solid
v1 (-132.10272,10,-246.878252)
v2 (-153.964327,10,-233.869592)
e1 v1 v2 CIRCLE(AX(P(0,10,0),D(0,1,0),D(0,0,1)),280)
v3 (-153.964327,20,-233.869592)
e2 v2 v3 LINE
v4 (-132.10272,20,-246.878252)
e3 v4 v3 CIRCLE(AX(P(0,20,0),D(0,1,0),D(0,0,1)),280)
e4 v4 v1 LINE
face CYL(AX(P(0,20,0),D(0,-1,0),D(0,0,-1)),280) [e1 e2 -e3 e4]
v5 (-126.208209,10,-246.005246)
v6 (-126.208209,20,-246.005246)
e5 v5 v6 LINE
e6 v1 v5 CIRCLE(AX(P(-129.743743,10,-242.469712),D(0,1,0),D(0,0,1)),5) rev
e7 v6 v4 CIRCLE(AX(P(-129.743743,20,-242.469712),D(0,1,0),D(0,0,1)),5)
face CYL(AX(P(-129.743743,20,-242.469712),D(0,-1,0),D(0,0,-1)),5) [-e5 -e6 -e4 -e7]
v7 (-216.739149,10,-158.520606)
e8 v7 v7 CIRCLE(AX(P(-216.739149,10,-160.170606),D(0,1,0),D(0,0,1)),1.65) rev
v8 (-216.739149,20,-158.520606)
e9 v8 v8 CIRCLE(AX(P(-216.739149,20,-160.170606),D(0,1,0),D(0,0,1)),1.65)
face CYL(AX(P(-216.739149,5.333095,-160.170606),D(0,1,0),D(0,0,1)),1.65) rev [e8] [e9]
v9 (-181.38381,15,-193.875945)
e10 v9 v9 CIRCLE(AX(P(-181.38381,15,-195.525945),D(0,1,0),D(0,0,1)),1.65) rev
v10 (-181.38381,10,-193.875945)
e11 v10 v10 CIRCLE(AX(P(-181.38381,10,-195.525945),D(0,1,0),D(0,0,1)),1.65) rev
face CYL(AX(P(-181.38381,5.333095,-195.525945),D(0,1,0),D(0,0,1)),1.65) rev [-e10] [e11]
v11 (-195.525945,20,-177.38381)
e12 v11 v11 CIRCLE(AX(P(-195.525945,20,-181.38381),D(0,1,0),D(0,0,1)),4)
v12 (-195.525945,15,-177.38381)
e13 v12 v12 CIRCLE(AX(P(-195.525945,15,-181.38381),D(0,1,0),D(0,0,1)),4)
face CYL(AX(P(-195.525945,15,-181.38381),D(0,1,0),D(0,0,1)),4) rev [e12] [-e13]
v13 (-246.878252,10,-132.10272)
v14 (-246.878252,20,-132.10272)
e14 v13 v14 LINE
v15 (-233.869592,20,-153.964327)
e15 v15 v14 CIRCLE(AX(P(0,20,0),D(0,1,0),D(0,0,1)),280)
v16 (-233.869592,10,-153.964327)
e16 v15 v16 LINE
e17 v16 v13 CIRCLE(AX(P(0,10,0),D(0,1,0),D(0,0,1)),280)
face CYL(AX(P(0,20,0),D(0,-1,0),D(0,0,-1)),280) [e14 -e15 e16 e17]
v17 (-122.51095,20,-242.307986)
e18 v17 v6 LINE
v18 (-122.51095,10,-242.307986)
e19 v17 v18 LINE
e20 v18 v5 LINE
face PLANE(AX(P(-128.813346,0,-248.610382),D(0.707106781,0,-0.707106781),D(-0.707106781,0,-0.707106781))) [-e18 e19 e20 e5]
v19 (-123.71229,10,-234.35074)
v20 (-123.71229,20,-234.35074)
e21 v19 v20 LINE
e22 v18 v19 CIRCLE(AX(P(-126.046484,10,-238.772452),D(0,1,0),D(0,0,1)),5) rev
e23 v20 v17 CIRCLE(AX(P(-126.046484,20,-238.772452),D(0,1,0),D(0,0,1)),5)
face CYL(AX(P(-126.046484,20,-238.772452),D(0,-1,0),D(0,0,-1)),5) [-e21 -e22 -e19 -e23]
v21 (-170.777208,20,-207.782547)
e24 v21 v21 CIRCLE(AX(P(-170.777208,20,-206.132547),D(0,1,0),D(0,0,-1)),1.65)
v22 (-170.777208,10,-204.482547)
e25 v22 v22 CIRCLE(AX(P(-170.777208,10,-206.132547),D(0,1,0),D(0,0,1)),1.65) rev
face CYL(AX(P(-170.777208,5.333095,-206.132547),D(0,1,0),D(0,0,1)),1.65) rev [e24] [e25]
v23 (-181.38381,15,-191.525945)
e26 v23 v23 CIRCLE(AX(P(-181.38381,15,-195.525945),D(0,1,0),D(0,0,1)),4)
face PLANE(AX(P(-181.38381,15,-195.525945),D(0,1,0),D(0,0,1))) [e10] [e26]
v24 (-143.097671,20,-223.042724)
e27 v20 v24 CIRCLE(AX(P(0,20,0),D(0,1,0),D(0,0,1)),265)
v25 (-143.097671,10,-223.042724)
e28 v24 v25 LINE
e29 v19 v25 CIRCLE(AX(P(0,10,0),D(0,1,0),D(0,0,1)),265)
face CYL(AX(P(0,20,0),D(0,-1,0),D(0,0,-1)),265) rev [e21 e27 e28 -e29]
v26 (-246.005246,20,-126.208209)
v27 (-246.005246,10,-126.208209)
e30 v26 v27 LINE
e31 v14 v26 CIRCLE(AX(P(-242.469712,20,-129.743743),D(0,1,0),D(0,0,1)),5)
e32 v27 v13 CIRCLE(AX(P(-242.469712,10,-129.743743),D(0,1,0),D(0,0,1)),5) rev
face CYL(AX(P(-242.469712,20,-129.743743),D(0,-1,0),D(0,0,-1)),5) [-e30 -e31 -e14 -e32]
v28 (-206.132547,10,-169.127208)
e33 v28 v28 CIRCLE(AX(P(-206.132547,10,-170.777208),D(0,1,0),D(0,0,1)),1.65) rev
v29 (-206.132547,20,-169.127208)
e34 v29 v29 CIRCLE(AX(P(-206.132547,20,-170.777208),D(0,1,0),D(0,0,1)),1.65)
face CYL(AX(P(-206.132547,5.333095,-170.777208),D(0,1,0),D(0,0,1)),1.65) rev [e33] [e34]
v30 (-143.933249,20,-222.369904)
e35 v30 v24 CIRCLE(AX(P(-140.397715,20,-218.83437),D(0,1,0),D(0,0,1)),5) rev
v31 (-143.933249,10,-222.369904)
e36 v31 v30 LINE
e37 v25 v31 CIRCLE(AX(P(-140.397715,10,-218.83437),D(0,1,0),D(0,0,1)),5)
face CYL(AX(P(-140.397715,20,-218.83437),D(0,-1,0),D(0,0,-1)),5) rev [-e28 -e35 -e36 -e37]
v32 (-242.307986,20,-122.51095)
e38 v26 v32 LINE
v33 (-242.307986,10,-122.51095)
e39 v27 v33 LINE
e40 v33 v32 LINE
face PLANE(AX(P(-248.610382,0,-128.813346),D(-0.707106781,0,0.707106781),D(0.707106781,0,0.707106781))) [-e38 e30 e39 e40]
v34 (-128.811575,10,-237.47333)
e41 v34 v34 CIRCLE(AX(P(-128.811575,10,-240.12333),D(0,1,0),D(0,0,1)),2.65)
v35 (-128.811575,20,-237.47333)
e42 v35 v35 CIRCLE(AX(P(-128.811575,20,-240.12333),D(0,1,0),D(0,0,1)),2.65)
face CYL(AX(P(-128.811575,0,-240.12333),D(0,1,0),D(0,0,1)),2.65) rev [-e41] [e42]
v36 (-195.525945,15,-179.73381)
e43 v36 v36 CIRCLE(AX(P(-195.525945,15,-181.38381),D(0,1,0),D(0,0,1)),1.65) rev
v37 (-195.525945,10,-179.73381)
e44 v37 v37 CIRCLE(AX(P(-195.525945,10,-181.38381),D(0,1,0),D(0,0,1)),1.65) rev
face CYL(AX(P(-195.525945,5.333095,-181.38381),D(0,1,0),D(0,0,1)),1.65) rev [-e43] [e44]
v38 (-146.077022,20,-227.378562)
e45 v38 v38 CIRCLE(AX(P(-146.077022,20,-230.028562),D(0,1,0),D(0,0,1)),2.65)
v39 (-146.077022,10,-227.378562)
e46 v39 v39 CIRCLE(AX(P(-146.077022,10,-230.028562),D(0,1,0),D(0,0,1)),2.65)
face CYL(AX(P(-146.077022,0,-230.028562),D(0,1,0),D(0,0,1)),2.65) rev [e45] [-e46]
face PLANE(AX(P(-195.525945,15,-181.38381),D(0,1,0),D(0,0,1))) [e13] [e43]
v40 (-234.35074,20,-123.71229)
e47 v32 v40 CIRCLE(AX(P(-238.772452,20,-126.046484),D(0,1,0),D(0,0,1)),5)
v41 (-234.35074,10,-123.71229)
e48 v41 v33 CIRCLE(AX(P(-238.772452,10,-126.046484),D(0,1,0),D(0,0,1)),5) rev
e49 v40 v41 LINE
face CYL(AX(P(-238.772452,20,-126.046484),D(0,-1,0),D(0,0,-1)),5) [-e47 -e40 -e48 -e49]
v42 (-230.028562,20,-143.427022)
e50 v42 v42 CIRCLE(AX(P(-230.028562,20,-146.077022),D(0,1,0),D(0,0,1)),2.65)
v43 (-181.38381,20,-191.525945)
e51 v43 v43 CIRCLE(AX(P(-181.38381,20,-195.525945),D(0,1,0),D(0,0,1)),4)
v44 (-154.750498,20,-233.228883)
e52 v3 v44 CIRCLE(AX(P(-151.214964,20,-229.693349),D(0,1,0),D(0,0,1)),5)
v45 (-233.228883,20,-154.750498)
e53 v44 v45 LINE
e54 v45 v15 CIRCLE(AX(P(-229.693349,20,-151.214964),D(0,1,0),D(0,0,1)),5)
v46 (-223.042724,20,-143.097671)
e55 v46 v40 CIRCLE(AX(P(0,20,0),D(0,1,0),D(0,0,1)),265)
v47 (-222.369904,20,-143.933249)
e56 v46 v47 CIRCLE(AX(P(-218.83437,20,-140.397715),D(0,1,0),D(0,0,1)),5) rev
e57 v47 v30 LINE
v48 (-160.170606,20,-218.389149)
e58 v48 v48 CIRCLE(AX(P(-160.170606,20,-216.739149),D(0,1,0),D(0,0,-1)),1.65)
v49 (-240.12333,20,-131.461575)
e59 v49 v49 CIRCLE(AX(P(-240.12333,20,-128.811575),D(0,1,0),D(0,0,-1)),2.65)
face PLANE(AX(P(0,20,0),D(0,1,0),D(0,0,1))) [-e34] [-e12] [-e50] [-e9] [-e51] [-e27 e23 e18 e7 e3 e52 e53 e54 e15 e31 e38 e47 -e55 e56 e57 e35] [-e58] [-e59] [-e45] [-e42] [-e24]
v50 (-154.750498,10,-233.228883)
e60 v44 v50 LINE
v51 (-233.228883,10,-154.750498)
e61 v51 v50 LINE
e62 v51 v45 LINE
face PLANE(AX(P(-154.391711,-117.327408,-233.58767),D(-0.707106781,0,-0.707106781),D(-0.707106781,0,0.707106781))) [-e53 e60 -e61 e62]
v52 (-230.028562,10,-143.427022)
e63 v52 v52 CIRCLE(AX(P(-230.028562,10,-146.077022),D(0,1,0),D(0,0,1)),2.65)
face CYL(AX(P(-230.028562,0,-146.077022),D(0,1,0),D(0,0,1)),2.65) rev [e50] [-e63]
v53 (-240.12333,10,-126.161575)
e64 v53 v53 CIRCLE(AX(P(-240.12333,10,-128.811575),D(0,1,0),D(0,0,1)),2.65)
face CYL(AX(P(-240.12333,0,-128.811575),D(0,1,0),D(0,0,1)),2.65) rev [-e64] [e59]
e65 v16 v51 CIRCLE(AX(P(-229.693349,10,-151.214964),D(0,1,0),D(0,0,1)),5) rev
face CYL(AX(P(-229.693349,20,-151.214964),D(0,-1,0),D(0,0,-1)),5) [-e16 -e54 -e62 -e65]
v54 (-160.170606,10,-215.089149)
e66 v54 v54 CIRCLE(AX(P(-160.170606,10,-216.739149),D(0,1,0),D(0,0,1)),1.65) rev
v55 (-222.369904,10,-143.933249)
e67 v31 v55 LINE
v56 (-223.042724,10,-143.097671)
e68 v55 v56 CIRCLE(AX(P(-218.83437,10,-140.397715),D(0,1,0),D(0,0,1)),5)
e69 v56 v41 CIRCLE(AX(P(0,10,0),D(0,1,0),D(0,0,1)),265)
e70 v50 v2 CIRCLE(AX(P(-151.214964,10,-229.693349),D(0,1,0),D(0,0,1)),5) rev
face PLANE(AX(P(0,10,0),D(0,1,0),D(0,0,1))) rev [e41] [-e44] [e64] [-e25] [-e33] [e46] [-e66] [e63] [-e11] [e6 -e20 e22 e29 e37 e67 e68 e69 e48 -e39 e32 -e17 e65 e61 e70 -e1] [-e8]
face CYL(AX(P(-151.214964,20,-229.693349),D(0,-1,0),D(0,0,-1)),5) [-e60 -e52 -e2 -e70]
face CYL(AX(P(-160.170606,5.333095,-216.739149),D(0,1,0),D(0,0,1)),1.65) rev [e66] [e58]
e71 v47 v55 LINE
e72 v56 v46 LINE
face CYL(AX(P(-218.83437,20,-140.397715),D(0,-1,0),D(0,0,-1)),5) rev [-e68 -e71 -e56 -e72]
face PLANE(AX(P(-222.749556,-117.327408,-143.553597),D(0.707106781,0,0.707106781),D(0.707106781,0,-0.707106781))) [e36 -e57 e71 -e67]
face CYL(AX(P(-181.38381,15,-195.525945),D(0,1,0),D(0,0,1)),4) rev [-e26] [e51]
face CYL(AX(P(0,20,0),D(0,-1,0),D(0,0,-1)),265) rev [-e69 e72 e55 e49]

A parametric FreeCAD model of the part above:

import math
import FreeCAD as App
import Part
import Sketcher
Q = App.Units.Quantity


def edges_at(feature, points):
    """Names of the edges that pass closest to the given points."""
    edges = feature.Shape.Edges
    near = lambda p: min(range(len(edges)), key=lambda i: edges[i].distToShape(Part.Vertex(*p))[0])
    return sorted({f"Edge{near(p) + 1}" for p in points})


def add_polygon(sketch, points):
    """Adds a closed chain of lines whose ends are joined by coincident constraints."""
    first, n = sketch.GeometryCount, len(points)
    for a, b in zip(points, points[1:] + points[:1]):
        sketch.addGeometry(Part.LineSegment(App.Vector(*a, 0), App.Vector(*b, 0)), False)
    for i in range(n):
        sketch.addConstraint(Sketcher.Constraint("Coincident", first + i, 2, first + (i + 1) % n, 1))

doc = App.newDocument("Part")
body = doc.addObject("PartDesign::Body", "Body")

# Sketch on XZ plane
sketch1 = doc.addObject("Sketcher::SketchObject", "Sketch")
body.addObject(sketch1)
sketch1.AttachmentSupport = (doc.XZ_Plane, [""])
sketch1.MapMode = "FlatFace"
sketch1.addGeometry([
    Part.Circle(App.Vector(0, 0, 0), App.Vector(0, 0, 1), 275),
    Part.Circle(App.Vector(0, 0, 0), App.Vector(0, 0, 1), 255),
], False)
sketch1.addConstraint([
    Sketcher.Constraint("Coincident", 0, 3, -1, 1),
    Sketcher.Constraint("Coincident", 1, 3, -1, 1),
    Sketcher.Constraint("Diameter", 0, 550.0),
    Sketcher.Constraint("Diameter", 1, 510.0),
])
pad1 = doc.addObject("PartDesign::Pad", "Pad")
body.addObject(pad1)
pad1.Profile = sketch1
pad1.Length = 10
pad1.Reversed = True

# Sketch on XY plane
sketch2 = doc.addObject("Sketcher::SketchObject", "Sketch001")
body.addObject(sketch2)
sketch2.AttachmentSupport = (doc.XY_Plane, [""])
sketch2.MapMode = "FlatFace"
add_polygon(sketch2, [(-389, 10), (-389, -10), (389, -10), (389, 10)])  # lines 0-3
sketch2.addConstraint([
    Sketcher.Constraint("Vertical", 0),
    Sketcher.Constraint("Horizontal", 1),
    Sketcher.Constraint("Vertical", 2),
    Sketcher.Constraint("Horizontal", 3),
    Sketcher.Constraint("Symmetric", 0, 2, 2, 2, -1, 1),
    Sketcher.Constraint("DistanceY", 0, 2, 0, 1, 20.0),
    Sketcher.Constraint("DistanceX", 1, 1, 1, 2, 777.504066),
])
pocket1 = doc.addObject("PartDesign::Pocket", "Pocket")
body.addObject(pocket1)
pocket1.Profile = sketch2
pocket1.Type = "ThroughAll"
pocket1.Midplane = True
body2 = doc.addObject("PartDesign::Body", "Body001")

# Sketch on XZ plane
sketch3 = doc.addObject("Sketcher::SketchObject", "Sketch002")
body2.addObject(sketch3)
sketch3.AttachmentSupport = (doc.getObject("XZ_Plane001"), [""])
sketch3.MapMode = "FlatFace"
sketch3.AttachmentOffset = App.Placement(App.Vector(0, 0, -10), App.Rotation())
sketch3.addGeometry([
    Part.LineSegment(App.Vector(-25, -200, 0), App.Vector(-111, -257, 0)),  # 0
    Part.ArcOfCircle(Part.Circle(App.Vector(0, 0, 0), App.Vector(0, 0, 1), 280), math.radians(-157), math.radians(-113)),  # 1
    Part.LineSegment(App.Vector(-257, -111, 0), App.Vector(-200, -25, 0)),  # 2
    Part.LineSegment(App.Vector(-200, -25, 0), App.Vector(-200, 25, 0)),  # 3
    Part.LineSegment(App.Vector(-200, 25, 0), App.Vector(-257, 111, 0)),  # 4
    Part.ArcOfCircle(Part.Circle(App.Vector(0, 0, 0), App.Vector(0, 0, 1), 280), math.radians(113), math.radians(157)),  # 5
    Part.LineSegment(App.Vector(-111, 257, 0), App.Vector(-25, 200, 0)),  # 6
    Part.LineSegment(App.Vector(-25, 200, 0), App.Vector(25, 200, 0)),  # 7
    Part.LineSegment(App.Vector(25, 200, 0), App.Vector(111, 257, 0)),  # 8
    Part.ArcOfCircle(Part.Circle(App.Vector(0, 0, 0), App.Vector(0, 0, 1), 280), math.radians(23), math.radians(67)),  # 9
    Part.LineSegment(App.Vector(257, 111, 0), App.Vector(200, 25, 0)),  # 10
    Part.LineSegment(App.Vector(200, 25, 0), App.Vector(200, -25, 0)),  # 11
    Part.LineSegment(App.Vector(200, -25, 0), App.Vector(257, -111, 0)),  # 12
    Part.ArcOfCircle(Part.Circle(App.Vector(0, 0, 0), App.Vector(0, 0, 1), 280), math.radians(-67), math.radians(-23)),  # 13
    Part.LineSegment(App.Vector(111, -257, 0), App.Vector(25, -200, 0)),  # 14
    Part.LineSegment(App.Vector(25, -200, 0), App.Vector(-25, -200, 0)),  # 15
    Part.LineSegment(App.Vector(30, -185, 0), App.Vector(112, -240, 0)),  # 16
    Part.ArcOfCircle(Part.Circle(App.Vector(0, 0, 0), App.Vector(0, 0, 1), 265), math.radians(-65), math.radians(-25)),  # 17
    Part.LineSegment(App.Vector(240, -112, 0), App.Vector(185, -30, 0)),  # 18
    Part.LineSegment(App.Vector(185, -30, 0), App.Vector(185, 30, 0)),  # 19
    Part.LineSegment(App.Vector(185, 30, 0), App.Vector(240, 112, 0)),  # 20
    Part.ArcOfCircle(Part.Circle(App.Vector(0, 0, 0), App.Vector(0, 0, 1), 265), math.radians(25), math.radians(65)),  # 21
    Part.LineSegment(App.Vector(112, 240, 0), App.Vector(30, 185, 0)),  # 22
    Part.LineSegment(App.Vector(30, 185, 0), App.Vector(-30, 185, 0)),  # 23
    Part.LineSegment(App.Vector(-30, 185, 0), App.Vector(-112, 240, 0)),  # 24
    Part.ArcOfCircle(Part.Circle(App.Vector(0, 0, 0), App.Vector(0, 0, 1), 265), math.radians(115), math.radians(155)),  # 25
    Part.LineSegment(App.Vector(-240, 112, 0), App.Vector(-185, 30, 0)),  # 26
    Part.LineSegment(App.Vector(-185, 30, 0), App.Vector(-185, -30, 0)),  # 27
    Part.LineSegment(App.Vector(-185, -30, 0), App.Vector(-240, -112, 0)),  # 28
    Part.ArcOfCircle(Part.Circle(App.Vector(0, 0, 0), App.Vector(0, 0, 1), 265), math.radians(-155), math.radians(-115)),  # 29
    Part.LineSegment(App.Vector(-112, -240, 0), App.Vector(-30, -185, 0)),  # 30
    Part.LineSegment(App.Vector(-30, -185, 0), App.Vector(30, -185, 0)),  # 31
], False)
sketch3.addConstraint([
    Sketcher.Constraint("Coincident", 0, 2, 1, 2),
    Sketcher.Constraint("Coincident", 1, 1, 2, 1),
    Sketcher.Constraint("Coincident", 2, 2, 3, 1),
    Sketcher.Constraint("Coincident", 3, 2, 4, 1),
    Sketcher.Constraint("Coincident", 4, 2, 5, 2),
    Sketcher.Constraint("Coincident", 5, 1, 6, 1),
    Sketcher.Constraint("Coincident", 6, 2, 7, 1),
    Sketcher.Constraint("Coincident", 7, 2, 8, 1),
    Sketcher.Constraint("Coincident", 8, 2, 9, 2),
    Sketcher.Constraint("Coincident", 9, 1, 10, 1),
    Sketcher.Constraint("Coincident", 10, 2, 11, 1),
    Sketcher.Constraint("Coincident", 11, 2, 12, 1),
    Sketcher.Constraint("Coincident", 12, 2, 13, 2),
    Sketcher.Constraint("Coincident", 13, 1, 14, 1),
    Sketcher.Constraint("Coincident", 14, 2, 15, 1),
    Sketcher.Constraint("Coincident", 15, 2, 0, 1),
    Sketcher.Constraint("Coincident", 16, 2, 17, 1),
    Sketcher.Constraint("Coincident", 17, 2, 18, 1),
    Sketcher.Constraint("Coincident", 18, 2, 19, 1),
    Sketcher.Constraint("Coincident", 19, 2, 20, 1),
    Sketcher.Constraint("Coincident", 20, 2, 21, 1),
    Sketcher.Constraint("Coincident", 21, 2, 22, 1),
    Sketcher.Constraint("Coincident", 22, 2, 23, 1),
    Sketcher.Constraint("Coincident", 23, 2, 24, 1),
    Sketcher.Constraint("Coincident", 24, 2, 25, 1),
    Sketcher.Constraint("Coincident", 25, 2, 26, 1),
    Sketcher.Constraint("Coincident", 26, 2, 27, 1),
    Sketcher.Constraint("Coincident", 27, 2, 28, 1),
    Sketcher.Constraint("Coincident", 28, 2, 29, 1),
    Sketcher.Constraint("Coincident", 29, 2, 30, 1),
    Sketcher.Constraint("Coincident", 30, 2, 31, 1),
    Sketcher.Constraint("Coincident", 31, 2, 16, 1),
    Sketcher.Constraint("Vertical", 3),
    Sketcher.Constraint("Horizontal", 7),
    Sketcher.Constraint("Vertical", 11),
    Sketcher.Constraint("Horizontal", 15),
    Sketcher.Constraint("Vertical", 19),
    Sketcher.Constraint("Horizontal", 23),
    Sketcher.Constraint("Vertical", 27),
    Sketcher.Constraint("Horizontal", 31),
    Sketcher.Constraint("Coincident", 1, 3, -1, 1),
    Sketcher.Constraint("Coincident", 5, 3, -1, 1),
    Sketcher.Constraint("Coincident", 9, 3, -1, 1),
    Sketcher.Constraint("Coincident", 13, 3, -1, 1),
    Sketcher.Constraint("Coincident", 17, 3, -1, 1),
    Sketcher.Constraint("Coincident", 21, 3, -1, 1),
    Sketcher.Constraint("Coincident", 25, 3, -1, 1),
    Sketcher.Constraint("Coincident", 29, 3, -1, 1),
    Sketcher.Constraint("Equal", 1, 5),
    Sketcher.Constraint("Equal", 5, 9),
    Sketcher.Constraint("Equal", 9, 13),
    Sketcher.Constraint("Equal", 17, 21),
    Sketcher.Constraint("Equal", 21, 25),
    Sketcher.Constraint("Equal", 25, 29),
    Sketcher.Constraint("Symmetric", 2, 2, 10, 2, -1, 1),
    Sketcher.Constraint("Symmetric", 6, 2, 14, 2, -1, 1),
    Sketcher.Constraint("Symmetric", 18, 2, 26, 2, -1, 1),
    Sketcher.Constraint("Symmetric", 22, 2, 30, 2, -1, 1),
    Sketcher.Constraint("Perpendicular", 0, 4),
    Sketcher.Constraint("Perpendicular", 2, 6),
    Sketcher.Constraint("Perpendicular", 4, 8),
    Sketcher.Constraint("Perpendicular", 6, 10),
    Sketcher.Constraint("Perpendicular", 8, 12),
    Sketcher.Constraint("Perpendicular", 10, 14),
    Sketcher.Constraint("Parallel", 14, 16),
    Sketcher.Constraint("Parallel", 12, 18),
    Sketcher.Constraint("Perpendicular", 16, 20),
    Sketcher.Constraint("Perpendicular", 18, 22),
    Sketcher.Constraint("Perpendicular", 20, 24),
    Sketcher.Constraint("Perpendicular", 22, 26),
    Sketcher.Constraint("Perpendicular", 24, 28),
    Sketcher.Constraint("Perpendicular", 26, 30),
    Sketcher.Constraint("Horizontal", 5, 1, 8, 2),
    Sketcher.Constraint("Horizontal", 4, 2, 9, 1),
    Sketcher.Constraint("Horizontal", 3, 2, 10, 2),
    Sketcher.Constraint("Horizontal", 2, 2, 11, 2),
    Sketcher.Constraint("Horizontal", 19, 2, 26, 2),
    Sketcher.Constraint("Horizontal", 18, 2, 27, 2),
    Sketcher.Constraint("Vertical", 6, 2, 15, 2),
    Sketcher.Constraint("Vertical", 23, 2, 30, 2),
    Sketcher.Constraint("Vertical", 22, 2, 31, 2),
    Sketcher.Constraint("Equal", 15, 3),
    Sketcher.Constraint("Equal", 31, 19),
    Sketcher.Constraint("Equal", 0, 2),
    Sketcher.Constraint("Equal", 16, 18),
    Sketcher.Constraint("Radius", 1, 280.0),
    Sketcher.Constraint("Radius", 17, 265.0),
    Sketcher.Constraint("DistanceX", 23, 2, 23, 1, 60.0),
    Sketcher.Constraint("DistanceX", 2, 2, -1, 1, 200.0),
    Sketcher.Constraint("DistanceX", -1, 1, 18, 2, 185.0),
    Sketcher.Constraint("DistanceX", 7, 1, 7, 2, 50.846511),
    Sketcher.Constraint("DistanceX", 0, 2, -1, 1, 110.52514),
])
pad2 = doc.addObject("PartDesign::Pad", "Pad001")
body2.addObject(pad2)
pad2.Profile = sketch3
pad2.Length = 10
pad2.Reversed = True

# Sketch on XZ plane
sketch4 = doc.addObject("Sketcher::SketchObject", "Sketch003")
body2.addObject(sketch4)
sketch4.AttachmentSupport = (doc.getObject("XZ_Plane001"), [""])
sketch4.MapMode = "FlatFace"
sketch4.AttachmentOffset = App.Placement(App.Vector(0, 0, -20), App.Rotation())
sketch4.addGeometry([
    Part.Circle(App.Vector(-10, -192.5, 0), App.Vector(0, 0, 1), 2.6),  # 0
    Part.Circle(App.Vector(10, -192.5, 0), App.Vector(0, 0, 1), 2.6),  # 1
    Part.Circle(App.Vector(-10, 192.5, 0), App.Vector(0, 0, 1), 2.6),  # 2
    Part.Circle(App.Vector(10, 192.5, 0), App.Vector(0, 0, 1), 2.6),  # 3
    Part.Circle(App.Vector(192.5, -10, 0), App.Vector(0, 0, 1), 2.6),  # 4
    Part.Circle(App.Vector(192.5, 10, 0), App.Vector(0, 0, 1), 2.6),  # 5
    Part.Circle(App.Vector(-192.5, -10, 0), App.Vector(0, 0, 1), 2.6),  # 6
    Part.Circle(App.Vector(-192.5, 10, 0), App.Vector(0, 0, 1), 2.6),  # 7
    Part.Circle(App.Vector(-110.5, -248.2, 0), App.Vector(0, 0, 1), 1.6),  # 8
    Part.Circle(App.Vector(-27.7, -192.5, 0), App.Vector(0, 0, 1), 2.1),  # 9
    Part.Circle(App.Vector(-44.3, -203.7, 0), App.Vector(0, 0, 1), 2.1),  # 10
    Part.Circle(App.Vector(-56.7, -212, 0), App.Vector(0, 0, 1), 2.1),  # 11
    Part.Circle(App.Vector(-69.2, -220.4, 0), App.Vector(0, 0, 1), 2.1),  # 12
    Part.Circle(App.Vector(-81.6, -228.8, 0), App.Vector(0, 0, 1), 2.1),  # 13
    Part.Circle(App.Vector(-146.1, -230, 0), App.Vector(0, 0, 1), 2.6),  # 14
    Part.Circle(App.Vector(-164.4, -217.3, 0), App.Vector(0, 0, 1), 2.6),  # 15
    Part.Circle(App.Vector(-183.6, -201.3, 0), App.Vector(0, 0, 1), 2.6),  # 16
    Part.Circle(App.Vector(-201.3, -183.6, 0), App.Vector(0, 0, 1), 2.6),  # 17
    Part.Circle(App.Vector(-217.3, -164.4, 0), App.Vector(0, 0, 1), 2.6),  # 18
    Part.Circle(App.Vector(-230, -146.1, 0), App.Vector(0, 0, 1), 2.6),  # 19
    Part.Circle(App.Vector(-128.8, -240.1, 0), App.Vector(0, 0, 1), 2.6),  # 20
    Part.Circle(App.Vector(-240.1, -128.8, 0), App.Vector(0, 0, 1), 2.6),  # 21
    Part.Circle(App.Vector(-228.8, -81.6, 0), App.Vector(0, 0, 1), 2.1),  # 22
    Part.Circle(App.Vector(-220.4, -69.2, 0), App.Vector(0, 0, 1), 2.1),  # 23
    Part.Circle(App.Vector(-212, -56.7, 0), App.Vector(0, 0, 1), 2.1),  # 24
    Part.Circle(App.Vector(-203.7, -44.3, 0), App.Vector(0, 0, 1), 2.1),  # 25
    Part.Circle(App.Vector(-192.5, -27.7, 0), App.Vector(0, 0, 1), 2.1),  # 26
    Part.Circle(App.Vector(-248.2, -110.5, 0), App.Vector(0, 0, 1), 1.6),  # 27
    Part.Circle(App.Vector(192.5, -27.7, 0), App.Vector(0, 0, 1), 2.1),  # 28
    Part.Circle(App.Vector(248.2, -110.5, 0), App.Vector(0, 0, 1), 1.6),  # 29
    Part.Circle(App.Vector(203.7, -44.3, 0), App.Vector(0, 0, 1), 2.1),  # 30
    Part.Circle(App.Vector(212, -56.7, 0), App.Vector(0, 0, 1), 2.1),  # 31
    Part.Circle(App.Vector(220.4, -69.2, 0), App.Vector(0, 0, 1), 2.1),  # 32
    Part.Circle(App.Vector(228.8, -81.6, 0), App.Vector(0, 0, 1), 2.1),  # 33
    Part.Circle(App.Vector(240.1, -128.8, 0), App.Vector(0, 0, 1), 2.6),  # 34
    Part.Circle(App.Vector(230, -146.1, 0), App.Vector(0, 0, 1), 2.6),  # 35
    Part.Circle(App.Vector(128.8, -240.1, 0), App.Vector(0, 0, 1), 2.6),  # 36
    Part.Circle(App.Vector(201.3, -183.6, 0), App.Vector(0, 0, 1), 2.6),  # 37
    Part.Circle(App.Vector(183.6, -201.3, 0), App.Vector(0, 0, 1), 2.6),  # 38
    Part.Circle(App.Vector(164.4, -217.3, 0), App.Vector(0, 0, 1), 2.6),  # 39
    Part.Circle(App.Vector(146.1, -230, 0), App.Vector(0, 0, 1), 2.6),  # 40
    Part.Circle(App.Vector(81.6, -228.8, 0), App.Vector(0, 0, 1), 2.1),  # 41
    Part.Circle(App.Vector(69.2, -220.4, 0), App.Vector(0, 0, 1), 2.1),  # 42
    Part.Circle(App.Vector(56.7, -212, 0), App.Vector(0, 0, 1), 2.1),  # 43
    Part.Circle(App.Vector(44.3, -203.7, 0), App.Vector(0, 0, 1), 2.1),  # 44
    Part.Circle(App.Vector(110.5, -248.2, 0), App.Vector(0, 0, 1), 1.6),  # 45
    Part.Circle(App.Vector(27.7, -192.5, 0), App.Vector(0, 0, 1), 2.1),  # 46
    Part.Circle(App.Vector(217.3, -164.4, 0), App.Vector(0, 0, 1), 2.6),  # 47
], False)
sketch4.addConstraint([
    Sketcher.Constraint("Equal", 0, 1),
    Sketcher.Constraint("Equal", 1, 2),
    Sketcher.Constraint("Equal", 2, 3),
    Sketcher.Constraint("Equal", 3, 4),
    Sketcher.Constraint("Equal", 4, 5),
    Sketcher.Constraint("Equal", 5, 6),
    Sketcher.Constraint("Equal", 6, 7),
    Sketcher.Constraint("Equal", 9, 10),
    Sketcher.Constraint("Equal", 10, 11),
    Sketcher.Constraint("Equal", 11, 12),
    Sketcher.Constraint("Equal", 12, 13),
    Sketcher.Constraint("Equal", 7, 14),
    Sketcher.Constraint("Equal", 14, 15),
    Sketcher.Constraint("Equal", 15, 16),
    Sketcher.Constraint("Equal", 16, 17),
    Sketcher.Constraint("Equal", 17, 18),
    Sketcher.Constraint("Equal", 18, 19),
    Sketcher.Constraint("Equal", 19, 20),
    Sketcher.Constraint("Equal", 20, 21),
    Sketcher.Constraint("Equal", 13, 22),
    Sketcher.Constraint("Equal", 22, 23),
    Sketcher.Constraint("Equal", 23, 24),
    Sketcher.Constraint("Equal", 24, 25),
    Sketcher.Constraint("Equal", 25, 26),
    Sketcher.Constraint("Equal", 8, 27),
    Sketcher.Constraint("Equal", 26, 28),
    Sketcher.Constraint("Equal", 27, 29),
    Sketcher.Constraint("Equal", 28, 30),
    Sketcher.Constraint("Equal", 30, 31),
    Sketcher.Constraint("Equal", 31, 32),
    Sketcher.Constraint("Equal", 32, 33),
    Sketcher.Constraint("Equal", 21, 34),
    Sketcher.Constraint("Equal", 34, 35),
    Sketcher.Constraint("Equal", 35, 36),
    Sketcher.Constraint("Equal", 36, 37),
    Sketcher.Constraint("Equal", 37, 38),
    Sketcher.Constraint("Equal", 38, 39),
    Sketcher.Constraint("Equal", 39, 40),
    Sketcher.Constraint("Equal", 33, 41),
    Sketcher.Constraint("Equal", 41, 42),
    Sketcher.Constraint("Equal", 42, 43),
    Sketcher.Constraint("Equal", 43, 44),
    Sketcher.Constraint("Equal", 29, 45),
    Sketcher.Constraint("Equal", 44, 46),
    Sketcher.Constraint("Equal", 40, 47),
    Sketcher.Constraint("Symmetric", 1, 3, 2, 3, -1, 1),
    Sketcher.Constraint("Symmetric", 0, 3, 3, 3, -1, 1),
    Sketcher.Constraint("Symmetric", 5, 3, 6, 3, -1, 1),
    Sketcher.Constraint("Symmetric", 4, 3, 7, 3, -1, 1),
    Sketcher.Constraint("Symmetric", 0, 3, 1, 3, -2),
    Sketcher.Constraint("Symmetric", 4, 3, 6, 3, -2),
    Sketcher.Constraint("Symmetric", 26, 3, 28, 3, -2),
    Sketcher.Constraint("Symmetric", 27, 3, 29, 3, -2),
    Sketcher.Constraint("Symmetric", 25, 3, 30, 3, -2),
    Sketcher.Constraint("Symmetric", 24, 3, 31, 3, -2),
    Sketcher.Constraint("Symmetric", 23, 3, 32, 3, -2),
    Sketcher.Constraint("Symmetric", 22, 3, 33, 3, -2),
    Sketcher.Constraint("Symmetric", 21, 3, 34, 3, -2),
    Sketcher.Constraint("Symmetric", 19, 3, 35, 3, -2),
    Sketcher.Constraint("Symmetric", 20, 3, 36, 3, -2),
    Sketcher.Constraint("Symmetric", 17, 3, 37, 3, -2),
    Sketcher.Constraint("Symmetric", 16, 3, 38, 3, -2),
    Sketcher.Constraint("Symmetric", 15, 3, 39, 3, -2),
    Sketcher.Constraint("Symmetric", 14, 3, 40, 3, -2),
    Sketcher.Constraint("Symmetric", 13, 3, 41, 3, -2),
    Sketcher.Constraint("Symmetric", 12, 3, 42, 3, -2),
    Sketcher.Constraint("Symmetric", 11, 3, 43, 3, -2),
    Sketcher.Constraint("Symmetric", 10, 3, 44, 3, -2),
    Sketcher.Constraint("Symmetric", 8, 3, 45, 3, -2),
    Sketcher.Constraint("Symmetric", 9, 3, 46, 3, -2),
    Sketcher.Constraint("Symmetric", 18, 3, 47, 3, -2),
    Sketcher.Constraint("Horizontal", 1, 3, 9, 3),
    Sketcher.Constraint("Vertical", 7, 3, 26, 3),
    Sketcher.Constraint("Diameter", 0, 5.3),
    Sketcher.Constraint("Diameter", 8, 3.3),
    Sketcher.Constraint("Diameter", 9, 4.3),
    Sketcher.Constraint("DistanceX", 0, 3, -1, 1, 10.0),
    Sketcher.Constraint("DistanceY", 4, 3, -1, 1, 10.0),
    Sketcher.Constraint("DistanceY", 0, 3, 2, 3, 385.0),
    Sketcher.Constraint("DistanceX", 6, 3, 4, 3, 385.0),
    Sketcher.Constraint("DistanceY", 8, 3, -1, 1, 248.2231),
    Sketcher.Constraint("DistanceX", 27, 3, -1, 1, 248.2231),
    Sketcher.Constraint("DistanceX", 8, 3, 10, 3, 66.220201),
    Sketcher.Constraint("DistanceX", 14, 3, 11, 3, 89.327101),
    Sketcher.Constraint("DistanceX", 15, 3, 11, 3, 107.665598),
    Sketcher.Constraint("DistanceY", 20, 3, 15, 3, 22.823601),
    Sketcher.Constraint("DistanceX", 21, 3, 18, 3, 22.823601),
    Sketcher.Constraint("DistanceY", 29, 3, 30, 3, 66.220201),
    Sketcher.Constraint("DistanceY", 35, 3, 31, 3, 89.327101),
    Sketcher.Constraint("DistanceX", 8, 3, -1, 1, 110.52514),
    Sketcher.Constraint("DistanceX", 11, 3, -1, 1, 56.749921),
    Sketcher.Constraint("DistanceY", 12, 3, -1, 1, 220.413039),
    Sketcher.Constraint("DistanceY", 13, 3, -1, 1, 228.786951),
    Sketcher.Constraint("DistanceY", 14, 3, -1, 1, 230.028562),
    Sketcher.Constraint("DistanceY", 15, 3, -1, 1, 217.29973),
    Sketcher.Constraint("DistanceX", 18, 3, -1, 1, 217.29973),
    Sketcher.Constraint("DistanceY", 18, 3, -1, 1, 164.41552),
    Sketcher.Constraint("DistanceX", 19, 3, -1, 1, 230.028562),
    Sketcher.Constraint("DistanceX", 22, 3, -1, 1, 228.786951),
    Sketcher.Constraint("DistanceX", 23, 3, -1, 1, 220.413039),
    Sketcher.Constraint("DistanceY", 24, 3, -1, 1, 56.749921),
    Sketcher.Constraint("DistanceY", 25, 3, -1, 1, 44.304938),
    Sketcher.Constraint("DistanceX", 10, 3, 9, 3, 16.593311),
    Sketcher.Constraint("DistanceY", 11, 3, 10, 3, 8.373912),
    Sketcher.Constraint("DistanceY", 12, 3, 11, 3, 8.373912),
    Sketcher.Constraint("DistanceX", 13, 3, 10, 3, 37.334949),
    Sketcher.Constraint("DistanceX", 16, 3, 13, 3, 101.99905),
    Sketcher.Constraint("DistanceY", 12, 3, 16, 3, 19.096432),
    Sketcher.Constraint("DistanceX", 17, 3, 16, 3, 17.67767),
    Sketcher.Constraint("DistanceY", 16, 3, 17, 3, 17.67767),
    Sketcher.Constraint("DistanceX", 20, 3, 12, 3, 59.616671),
    Sketcher.Constraint("DistanceY", 16, 3, 21, 3, 72.505032),
    Sketcher.Constraint("DistanceY", 21, 3, 23, 3, 59.616671),
    Sketcher.Constraint("DistanceX", 23, 3, 24, 3, 8.373912),
    Sketcher.Constraint("DistanceX", 24, 3, 25, 3, 8.373912),
    Sketcher.Constraint("DistanceY", 22, 3, 25, 3, 37.334949),
    Sketcher.Constraint("DistanceY", 25, 3, 26, 3, 16.593311),
    Sketcher.Constraint("DistanceX", 36, 3, 37, 3, 72.505032),
])
pocket2 = doc.addObject("PartDesign::Pocket", "Pocket001")
body2.addObject(pocket2)
pocket2.Profile = sketch4
pocket2.Type = "ThroughAll"
pocket2.Reversed = True

# Sketch on XZ plane
sketch5 = doc.addObject("Sketcher::SketchObject", "Sketch004")
body2.addObject(sketch5)
sketch5.AttachmentSupport = (doc.getObject("XZ_Plane001"), [""])
sketch5.MapMode = "FlatFace"
sketch5.AttachmentOffset = App.Placement(App.Vector(0, 0, -20), App.Rotation())
add_polygon(sketch5, [(-353.807, -353.807), (-353.807, 353.807), (353.807, 353.807), (353.807, -353.807)])  # lines 0-3
sketch5.addGeometry(Part.ArcOfCircle(Part.Circle(App.Vector(0, 0, 0), App.Vector(0, 0, 1), 280), math.radians(-152.609817), math.radians(-117.390183)), False)  # 4
sketch5.addGeometry(Part.LineSegment(App.Vector(-128.813346, -248.610382, 0), App.Vector(-117.653355, -237.450391, 0)), False)  # 5
sketch5.addGeometry(Part.ArcOfCircle(Part.Circle(App.Vector(0, 0, 0), App.Vector(0, 0, 1), 265), math.radians(-153.642227), math.radians(-116.357773)), False)  # 6
sketch5.addGeometry(Part.LineSegment(App.Vector(-237.450391, -117.653355, 0), App.Vector(-248.610382, -128.813346, 0)), False)  # 7
sketch5.addConstraint([
    Sketcher.Constraint("Coincident", 4, 2, 5, 1),
    Sketcher.Constraint("Coincident", 5, 2, 6, 2),
    Sketcher.Constraint("Coincident", 6, 1, 7, 1),
    Sketcher.Constraint("Coincident", 7, 2, 4, 1),
    Sketcher.Constraint("Vertical", 0),
    Sketcher.Constraint("Horizontal", 1),
    Sketcher.Constraint("Vertical", 2),
    Sketcher.Constraint("Horizontal", 3),
    Sketcher.Constraint("Coincident", 4, 3, -1, 1),
    Sketcher.Constraint("Coincident", 6, 3, -1, 1),
    Sketcher.Constraint("Symmetric", 0, 2, 2, 2, -1, 1),
    Sketcher.Constraint("Parallel", 5, 7),
    Sketcher.Constraint("Equal", 3, 0),
    Sketcher.Constraint("Equal", 5, 7),
    Sketcher.Constraint("Radius", 4, 280.0),
    Sketcher.Constraint("Radius", 6, 265.0),
    Sketcher.Constraint("Angle", 5, Q("45 deg")),
    Sketcher.Constraint("DistanceX", 1, 1, 1, 2, 707.614),
    Sketcher.Constraint("Distance", 5, 15.782611),
])
pocket3 = doc.addObject("PartDesign::Pocket", "Pocket002")
body2.addObject(pocket3)
pocket3.Profile = sketch5
pocket3.Type = "ThroughAll"
pocket3.Reversed = True

# Sketch on XZ plane
sketch6 = doc.addObject("Sketcher::SketchObject", "Sketch005")
body2.addObject(sketch6)
sketch6.AttachmentSupport = (doc.getObject("XZ_Plane001"), [""])
sketch6.MapMode = "FlatFace"
sketch6.AttachmentOffset = App.Placement(App.Vector(0, 0, -20), App.Rotation())
add_polygon(sketch6, [(-234, -154), (-223, -144), (-144, -223), (-154, -234)])  # lines 0-3
sketch6.addConstraint([
    Sketcher.Constraint("Perpendicular", 0, 1),
    Sketcher.Constraint("Perpendicular", 1, 2),
    Sketcher.Constraint("Perpendicular", 2, 3),
    Sketcher.Constraint("Angle", 0, Q("45 deg")),
    Sketcher.Constraint("Distance", 1, 112.0),
    Sketcher.Constraint("DistanceX", 2, 2, -1, 1, 154.391711),
    Sketcher.Constraint("DistanceY", 2, 2, -1, 1, 233.58767),
    Sketcher.Constraint("Distance", 0, 15.327408),
])
pad3 = doc.addObject("PartDesign::Pad", "Pad002")
body2.addObject(pad3)
pad3.Profile = sketch6
pad3.Length = 10

# Sketch on XZ plane
sketch7 = doc.addObject("Sketcher::SketchObject", "Sketch006")
body2.addObject(sketch7)
sketch7.AttachmentSupport = (doc.getObject("XZ_Plane001"), [""])
sketch7.MapMode = "FlatFace"
sketch7.AttachmentOffset = App.Placement(App.Vector(0, 0, -20), App.Rotation())
sketch7.addGeometry([
    Part.LineSegment(App.Vector(-234, -154, 0), App.Vector(-154, -234, 0)),
    Part.ArcOfCircle(Part.Circle(App.Vector(0, 0, 0), App.Vector(0, 0, 1), 280), math.radians(-147), math.radians(-123)),
], False)
sketch7.addConstraint([
    Sketcher.Constraint("Coincident", 0, 1, 1, 1),
    Sketcher.Constraint("Coincident", 1, 2, 0, 2),
    Sketcher.Constraint("Coincident", 1, 3, -1, 1),
    Sketcher.Constraint("Radius", 1, 280.0),
    Sketcher.Constraint("Angle", 0, Q("-45 deg")),
    Sketcher.Constraint("Distance", 0, 112.0),
])
pocket4 = doc.addObject("PartDesign::Pocket", "Pocket003")
body2.addObject(pocket4)
pocket4.Profile = sketch7
pocket4.Length = 10
pocket4.Reversed = True

# Sketch on XZ plane
sketch8 = doc.addObject("Sketcher::SketchObject", "Sketch007")
body2.addObject(sketch8)
sketch8.AttachmentSupport = (doc.getObject("XZ_Plane001"), [""])
sketch8.MapMode = "FlatFace"
sketch8.AttachmentOffset = App.Placement(App.Vector(0, 0, -20), App.Rotation())
sketch8.addGeometry([
    Part.Circle(App.Vector(-195.5, -181.4, 0), App.Vector(0, 0, 1), 1.6),  # 0
    Part.Circle(App.Vector(-206.1, -170.8, 0), App.Vector(0, 0, 1), 1.6),  # 1
    Part.Circle(App.Vector(-216.7, -160.2, 0), App.Vector(0, 0, 1), 1.6),  # 2
    Part.Circle(App.Vector(-181.4, -195.5, 0), App.Vector(0, 0, 1), 1.6),  # 3
    Part.Circle(App.Vector(-170.8, -206.1, 0), App.Vector(0, 0, 1), 1.6),  # 4
    Part.Circle(App.Vector(-160.2, -216.7, 0), App.Vector(0, 0, 1), 1.6),  # 5
], False)
sketch8.addConstraint([
    Sketcher.Constraint("Equal", 0, 1),
    Sketcher.Constraint("Equal", 1, 2),
    Sketcher.Constraint("Equal", 2, 3),
    Sketcher.Constraint("Equal", 3, 4),
    Sketcher.Constraint("Equal", 4, 5),
    Sketcher.Constraint("Diameter", 0, 3.3),
    Sketcher.Constraint("DistanceX", 1, 3, 0, 3, 10.606602),
    Sketcher.Constraint("DistanceY", 0, 3, 1, 3, 10.606602),
    Sketcher.Constraint("DistanceX", 2, 3, 1, 3, 10.606602),
    Sketcher.Constraint("DistanceY", 1, 3, 2, 3, 10.606602),
    Sketcher.Constraint("DistanceX", 3, 3, 4, 3, 10.606602),
    Sketcher.Constraint("DistanceY", 4, 3, 3, 3, 10.606602),
    Sketcher.Constraint("DistanceX", 4, 3, 5, 3, 10.606602),
    Sketcher.Constraint("DistanceY", 5, 3, 4, 3, 10.606602),
    Sketcher.Constraint("DistanceY", 0, 3, -1, 1, 181.38381),
    Sketcher.Constraint("DistanceX", 2, 3, -1, 1, 216.739149),
    Sketcher.Constraint("DistanceX", 3, 3, -1, 1, 181.38381),
    Sketcher.Constraint("DistanceY", 5, 3, -1, 1, 216.739149),
])
pocket5 = doc.addObject("PartDesign::Pocket", "Pocket004")
body2.addObject(pocket5)
pocket5.Profile = sketch8
pocket5.Length = 10
pocket5.Reversed = True

# Sketch on XZ plane
sketch9 = doc.addObject("Sketcher::SketchObject", "Sketch008")
body2.addObject(sketch9)
sketch9.AttachmentSupport = (doc.getObject("XZ_Plane001"), [""])
sketch9.MapMode = "FlatFace"
sketch9.AttachmentOffset = App.Placement(App.Vector(0, 0, -20), App.Rotation())
sketch9.addGeometry([
    Part.Circle(App.Vector(-181.4, -195.5, 0), App.Vector(0, 0, 1), 4),
    Part.Circle(App.Vector(-195.5, -181.4, 0), App.Vector(0, 0, 1), 4),
], False)
sketch9.addConstraint([
    Sketcher.Constraint("Equal", 0, 1),
    Sketcher.Constraint("Diameter", 0, 8.0),
    Sketcher.Constraint("DistanceX", 0, 3, -1, 1, 181.38381),
    Sketcher.Constraint("DistanceY", 1, 3, -1, 1, 181.38381),
    Sketcher.Constraint("DistanceY", 0, 3, -1, 1, 195.525945),
    Sketcher.Constraint("DistanceX", 1, 3, -1, 1, 195.525945),
])
pocket6 = doc.addObject("PartDesign::Pocket", "Pocket005")
body2.addObject(pocket6)
pocket6.Profile = sketch9
pocket6.Length = 5
pocket6.Reversed = True
doc.recompute()

fillet = doc.addObject("PartDesign::Fillet", "Fillet")
body2.addObject(fillet)
fillet.Base = (pocket6, edges_at(pocket6, [
    (-237.45, 15, -117.653),
    (-117.653, 15, -237.45),
    (-128.813, 15, -248.61),
    (-248.61, 15, -128.813),
    (-143.554, 15, -222.75),
    (-222.75, 15, -143.554),
    (-154.392, 15, -233.588),
    (-233.588, 15, -154.392),
]))
fillet.Radius = 5

doc.recompute()
